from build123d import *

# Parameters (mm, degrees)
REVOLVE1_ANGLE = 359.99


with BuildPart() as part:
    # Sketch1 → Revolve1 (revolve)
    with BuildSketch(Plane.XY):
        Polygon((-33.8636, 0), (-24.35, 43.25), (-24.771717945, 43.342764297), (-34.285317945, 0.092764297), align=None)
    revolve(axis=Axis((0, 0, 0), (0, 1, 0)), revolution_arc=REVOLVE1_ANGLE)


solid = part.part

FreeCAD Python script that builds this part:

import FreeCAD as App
import Part
import Sketcher
from FreeCAD import Vector
Q = App.Units.Quantity


def add_polygon(sketch, points):
    """Adds a closed chain of lines whose ends are joined by coincident constraints."""
    first, n = sketch.GeometryCount, len(points)
    for a, b in zip(points, points[1:] + points[:1]):
        sketch.addGeometry(Part.LineSegment(App.Vector(*a, 0), App.Vector(*b, 0)), False)
    for i in range(n):
        sketch.addConstraint(Sketcher.Constraint("Coincident", first + i, 2, first + (i + 1) % n, 1))

doc = App.newDocument("Part")
params = doc.addObject("Spreadsheet::Sheet", "Params")
for row, (alias, value) in enumerate([
    ("sketch1_length", "0.017 in"),
    ("revolution_angle", "359.99 deg"),
], start=1):
    params.set(f"A{row}", alias)
    params.set(f"B{row}", "=" + value)
    params.setAlias(f"B{row}", alias)

body = doc.addObject("PartDesign::Body", "Body")

# Sketch on XY plane
sketch1 = body.newObject("Sketcher::SketchObject", "Sketch")
sketch1.AttachmentSupport = (doc.getObject("XY_Plane"), [""])
sketch1.MapMode = "FlatFace"
add_polygon(sketch1, [(-33.8636, 0), (-24.35, 43.25), (-24.771718, 43.342764), (-34.285318, 0.092764)])  # lines 0-3
sketch1.addConstraint([
    Sketcher.Constraint("PointOnObject", 3, 2, -1),
    Sketcher.Constraint("Perpendicular", 0, 1),
    Sketcher.Constraint("Perpendicular", 1, 2),
    Sketcher.Constraint("Perpendicular", 2, 3),
    Sketcher.Constraint("Distance", 1, Q("0.017 in")),
    Sketcher.Constraint("DistanceX", 0, 2, -1, 1, Q("24.35 mm")),
    Sketcher.Constraint("DistanceY", -1, 1, 0, 2, Q("43.25 mm")),
    Sketcher.Constraint("DistanceX", 3, 2, -1, 1, Q("33.8636 mm")),
])
sketch1.setExpression("Constraints[8]", "Params.sketch1_length")
revolution = body.newObject("PartDesign::Revolution", "Revolution")
revolution.Profile = sketch1
revolution.ReferenceAxis = (sketch1, ["V_Axis"])
revolution.setExpression("Angle", "Params.revolution_angle")

doc.recompute()
